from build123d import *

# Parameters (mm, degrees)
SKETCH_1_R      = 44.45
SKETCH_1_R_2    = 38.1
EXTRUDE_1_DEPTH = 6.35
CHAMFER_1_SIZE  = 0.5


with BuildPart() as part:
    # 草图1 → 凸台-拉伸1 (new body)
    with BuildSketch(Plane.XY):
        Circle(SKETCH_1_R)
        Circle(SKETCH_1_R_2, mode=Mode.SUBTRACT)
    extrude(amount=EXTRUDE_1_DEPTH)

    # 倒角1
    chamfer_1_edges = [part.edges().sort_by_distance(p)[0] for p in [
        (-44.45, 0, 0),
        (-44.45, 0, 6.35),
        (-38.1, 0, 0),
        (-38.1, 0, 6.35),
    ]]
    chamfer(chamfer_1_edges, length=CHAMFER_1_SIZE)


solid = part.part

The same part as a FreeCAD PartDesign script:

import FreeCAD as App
import Part
import Sketcher

V = App.Vector
Q = App.Units.Quantity


def edges_at(feature, points):
    """Names of the edges that pass closest to the given points."""
    edges = feature.Shape.Edges
    near = lambda p: min(range(len(edges)), key=lambda i: edges[i].distToShape(Part.Vertex(*p))[0])
    return sorted({f"Edge{near(p) + 1}" for p in points})

doc = App.newDocument("Part")
body = doc.addObject("PartDesign::Body", "Body")

sketch1 = body.newObject("Sketcher::SketchObject", "Sketch")
sketch1.AttachmentSupport = (doc.getObject("XY_Plane"), [""])
sketch1.MapMode = "FlatFace"
sketch1.addGeometry(Part.Circle(V(0, 0, 0), V(0, 0, 1), 44), False)
sketch1.addGeometry(Part.Circle(V(0, 0, 0), V(0, 0, 1), 38), False)
sketch1.addConstraint(Sketcher.Constraint("Coincident", 0, 3, -1, 1))
sketch1.addConstraint(Sketcher.Constraint("Coincident", 1, 3, -1, 1))
sketch1.addConstraint(Sketcher.Constraint("Diameter", 1, Q("3 in")))
sketch1.addConstraint(Sketcher.Constraint("Diameter", 0, Q("3.5 in")))
pad1 = body.newObject("PartDesign::Pad", "Pad")
pad1.Profile = sketch1
pad1.Length = Q("0.25 in")
doc.recompute()

chamfer = body.newObject("PartDesign::Chamfer", "Chamfer")
chamfer.Base = (pad1, edges_at(pad1, [
    (-44.45, 0, 0),
    (-44.45, 0, 6.35),
    (-38.1, 0, 0),
    (-38.1, 0, 6.35),
]))
chamfer.Size = 0.5

doc.recompute()
